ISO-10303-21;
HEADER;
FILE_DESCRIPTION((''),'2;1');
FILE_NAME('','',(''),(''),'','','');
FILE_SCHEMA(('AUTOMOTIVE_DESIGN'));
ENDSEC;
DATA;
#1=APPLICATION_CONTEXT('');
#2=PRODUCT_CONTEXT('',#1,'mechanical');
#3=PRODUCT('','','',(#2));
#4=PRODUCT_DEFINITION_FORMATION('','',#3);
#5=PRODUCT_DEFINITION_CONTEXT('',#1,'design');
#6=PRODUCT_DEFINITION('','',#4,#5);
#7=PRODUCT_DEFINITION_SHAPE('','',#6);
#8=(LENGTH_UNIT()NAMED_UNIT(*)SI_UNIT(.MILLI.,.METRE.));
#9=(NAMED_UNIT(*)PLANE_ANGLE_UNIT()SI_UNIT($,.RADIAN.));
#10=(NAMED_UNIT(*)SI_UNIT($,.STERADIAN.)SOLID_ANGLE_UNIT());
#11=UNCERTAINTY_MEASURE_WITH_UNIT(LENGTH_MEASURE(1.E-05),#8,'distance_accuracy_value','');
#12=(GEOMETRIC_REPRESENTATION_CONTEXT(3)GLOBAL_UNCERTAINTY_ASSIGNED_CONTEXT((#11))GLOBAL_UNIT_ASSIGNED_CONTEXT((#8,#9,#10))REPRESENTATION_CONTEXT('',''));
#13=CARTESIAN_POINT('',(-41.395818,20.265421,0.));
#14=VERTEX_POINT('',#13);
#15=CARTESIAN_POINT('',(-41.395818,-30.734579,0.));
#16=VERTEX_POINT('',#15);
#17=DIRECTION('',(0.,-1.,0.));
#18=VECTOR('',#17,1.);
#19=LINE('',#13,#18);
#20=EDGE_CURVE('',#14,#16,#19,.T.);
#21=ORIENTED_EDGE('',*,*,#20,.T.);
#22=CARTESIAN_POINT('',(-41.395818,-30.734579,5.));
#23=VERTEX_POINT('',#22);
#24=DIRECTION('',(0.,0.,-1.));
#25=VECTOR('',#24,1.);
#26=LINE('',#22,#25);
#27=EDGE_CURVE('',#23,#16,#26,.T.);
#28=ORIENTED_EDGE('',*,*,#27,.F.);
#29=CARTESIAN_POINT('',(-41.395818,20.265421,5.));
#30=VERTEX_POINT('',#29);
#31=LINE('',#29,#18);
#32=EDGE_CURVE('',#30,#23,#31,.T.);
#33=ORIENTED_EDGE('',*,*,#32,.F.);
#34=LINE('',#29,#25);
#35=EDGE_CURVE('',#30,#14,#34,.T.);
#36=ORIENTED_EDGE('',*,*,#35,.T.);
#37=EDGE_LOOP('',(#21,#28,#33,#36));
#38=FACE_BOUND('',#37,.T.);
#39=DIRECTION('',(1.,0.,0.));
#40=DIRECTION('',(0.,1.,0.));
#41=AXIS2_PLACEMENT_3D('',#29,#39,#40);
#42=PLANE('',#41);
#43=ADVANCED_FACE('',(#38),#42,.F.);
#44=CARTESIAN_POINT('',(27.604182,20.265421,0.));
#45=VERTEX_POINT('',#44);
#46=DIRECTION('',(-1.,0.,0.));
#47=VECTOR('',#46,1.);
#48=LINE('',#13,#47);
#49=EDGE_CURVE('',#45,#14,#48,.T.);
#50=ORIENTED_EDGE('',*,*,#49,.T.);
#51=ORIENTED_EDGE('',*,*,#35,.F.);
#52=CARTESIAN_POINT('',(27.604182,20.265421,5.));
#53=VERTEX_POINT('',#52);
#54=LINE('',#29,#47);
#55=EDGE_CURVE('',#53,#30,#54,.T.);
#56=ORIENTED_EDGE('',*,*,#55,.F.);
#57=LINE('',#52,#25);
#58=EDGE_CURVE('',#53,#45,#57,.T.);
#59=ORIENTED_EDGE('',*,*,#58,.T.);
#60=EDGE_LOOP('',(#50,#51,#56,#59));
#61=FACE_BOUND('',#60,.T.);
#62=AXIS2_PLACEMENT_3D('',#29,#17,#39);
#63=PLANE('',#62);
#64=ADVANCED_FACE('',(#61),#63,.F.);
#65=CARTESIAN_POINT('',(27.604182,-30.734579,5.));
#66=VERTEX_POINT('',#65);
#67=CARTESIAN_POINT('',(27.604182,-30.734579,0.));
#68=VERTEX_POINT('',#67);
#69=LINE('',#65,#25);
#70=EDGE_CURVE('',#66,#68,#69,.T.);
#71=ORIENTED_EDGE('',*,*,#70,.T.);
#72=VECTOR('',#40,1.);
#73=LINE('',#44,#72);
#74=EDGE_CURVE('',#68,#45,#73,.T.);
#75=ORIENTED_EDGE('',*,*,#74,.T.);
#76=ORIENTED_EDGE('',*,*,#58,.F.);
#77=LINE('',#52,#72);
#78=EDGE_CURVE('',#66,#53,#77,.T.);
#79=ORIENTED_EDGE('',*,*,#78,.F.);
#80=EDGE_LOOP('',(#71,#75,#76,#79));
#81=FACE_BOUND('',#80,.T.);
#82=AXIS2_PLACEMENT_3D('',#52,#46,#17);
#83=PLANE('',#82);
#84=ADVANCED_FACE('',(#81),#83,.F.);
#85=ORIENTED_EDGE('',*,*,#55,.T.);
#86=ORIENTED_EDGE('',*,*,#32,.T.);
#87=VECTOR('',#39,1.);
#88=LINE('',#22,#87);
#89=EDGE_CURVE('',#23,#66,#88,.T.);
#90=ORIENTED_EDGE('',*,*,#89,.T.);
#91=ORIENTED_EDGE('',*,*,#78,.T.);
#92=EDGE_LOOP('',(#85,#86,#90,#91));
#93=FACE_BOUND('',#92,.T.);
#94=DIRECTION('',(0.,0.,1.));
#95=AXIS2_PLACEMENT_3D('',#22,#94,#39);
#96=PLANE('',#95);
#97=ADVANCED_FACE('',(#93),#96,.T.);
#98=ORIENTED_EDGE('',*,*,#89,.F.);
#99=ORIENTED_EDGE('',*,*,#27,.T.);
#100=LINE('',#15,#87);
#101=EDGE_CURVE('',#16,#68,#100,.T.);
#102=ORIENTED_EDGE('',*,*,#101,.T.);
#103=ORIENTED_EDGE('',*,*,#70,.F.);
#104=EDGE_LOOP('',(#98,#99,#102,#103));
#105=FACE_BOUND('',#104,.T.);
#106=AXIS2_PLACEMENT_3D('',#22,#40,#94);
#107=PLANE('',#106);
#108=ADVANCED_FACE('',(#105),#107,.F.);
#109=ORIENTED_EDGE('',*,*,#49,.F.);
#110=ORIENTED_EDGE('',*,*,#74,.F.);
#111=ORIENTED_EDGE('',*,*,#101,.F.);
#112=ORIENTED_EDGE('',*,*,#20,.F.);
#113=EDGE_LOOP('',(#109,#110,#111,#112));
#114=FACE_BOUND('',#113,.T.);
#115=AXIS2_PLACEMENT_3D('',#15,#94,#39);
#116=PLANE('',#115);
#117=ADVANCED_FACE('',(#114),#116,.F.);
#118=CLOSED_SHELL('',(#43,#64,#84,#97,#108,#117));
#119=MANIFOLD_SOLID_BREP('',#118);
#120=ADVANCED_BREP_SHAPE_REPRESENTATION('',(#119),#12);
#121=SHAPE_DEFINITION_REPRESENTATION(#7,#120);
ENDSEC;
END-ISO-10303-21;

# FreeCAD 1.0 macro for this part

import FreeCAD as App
import Part
import Sketcher
from FreeCAD import Vector

doc = App.newDocument("Part")
body = doc.addObject("PartDesign::Body", "Body")

sketch1 = body.newObject("Sketcher::SketchObject", "Sketch")
sketch1.AttachmentSupport = (doc.getObject("XY_Plane"), [""])
sketch1.MapMode = "FlatFace"
sketch1.addGeometry([
    Part.LineSegment(Vector(-41, 20, 0), Vector(-41, -31, 0)),
    Part.LineSegment(Vector(-41, -31, 0), Vector(28, -31, 0)),
    Part.LineSegment(Vector(28, -31, 0), Vector(28, 20, 0)),
    Part.LineSegment(Vector(28, 20, 0), Vector(-41, 20, 0)),
], False)
sketch1.addConstraint([
    Sketcher.Constraint("Coincident", 0, 2, 1, 1),
    Sketcher.Constraint("Coincident", 1, 2, 2, 1),
    Sketcher.Constraint("Coincident", 2, 2, 3, 1),
    Sketcher.Constraint("Coincident", 3, 2, 0, 1),
    Sketcher.Constraint("Vertical", 0),
    Sketcher.Constraint("Horizontal", 1),
    Sketcher.Constraint("Vertical", 2),
    Sketcher.Constraint("Horizontal", 3),
    Sketcher.Constraint("DistanceX", 1, 1, 1, 2, 69.0),
    Sketcher.Constraint("DistanceY", 0, 2, 0, 1, 51.0),
    Sketcher.Constraint("DistanceY", 0, 2, -1, 1, 30.734579),
    Sketcher.Constraint("DistanceX", 0, 2, -1, 1, 41.395818),
])
pad1 = body.newObject("PartDesign::Pad", "Pad")
pad1.Profile = sketch1
pad1.Length = 5

doc.recompute()
